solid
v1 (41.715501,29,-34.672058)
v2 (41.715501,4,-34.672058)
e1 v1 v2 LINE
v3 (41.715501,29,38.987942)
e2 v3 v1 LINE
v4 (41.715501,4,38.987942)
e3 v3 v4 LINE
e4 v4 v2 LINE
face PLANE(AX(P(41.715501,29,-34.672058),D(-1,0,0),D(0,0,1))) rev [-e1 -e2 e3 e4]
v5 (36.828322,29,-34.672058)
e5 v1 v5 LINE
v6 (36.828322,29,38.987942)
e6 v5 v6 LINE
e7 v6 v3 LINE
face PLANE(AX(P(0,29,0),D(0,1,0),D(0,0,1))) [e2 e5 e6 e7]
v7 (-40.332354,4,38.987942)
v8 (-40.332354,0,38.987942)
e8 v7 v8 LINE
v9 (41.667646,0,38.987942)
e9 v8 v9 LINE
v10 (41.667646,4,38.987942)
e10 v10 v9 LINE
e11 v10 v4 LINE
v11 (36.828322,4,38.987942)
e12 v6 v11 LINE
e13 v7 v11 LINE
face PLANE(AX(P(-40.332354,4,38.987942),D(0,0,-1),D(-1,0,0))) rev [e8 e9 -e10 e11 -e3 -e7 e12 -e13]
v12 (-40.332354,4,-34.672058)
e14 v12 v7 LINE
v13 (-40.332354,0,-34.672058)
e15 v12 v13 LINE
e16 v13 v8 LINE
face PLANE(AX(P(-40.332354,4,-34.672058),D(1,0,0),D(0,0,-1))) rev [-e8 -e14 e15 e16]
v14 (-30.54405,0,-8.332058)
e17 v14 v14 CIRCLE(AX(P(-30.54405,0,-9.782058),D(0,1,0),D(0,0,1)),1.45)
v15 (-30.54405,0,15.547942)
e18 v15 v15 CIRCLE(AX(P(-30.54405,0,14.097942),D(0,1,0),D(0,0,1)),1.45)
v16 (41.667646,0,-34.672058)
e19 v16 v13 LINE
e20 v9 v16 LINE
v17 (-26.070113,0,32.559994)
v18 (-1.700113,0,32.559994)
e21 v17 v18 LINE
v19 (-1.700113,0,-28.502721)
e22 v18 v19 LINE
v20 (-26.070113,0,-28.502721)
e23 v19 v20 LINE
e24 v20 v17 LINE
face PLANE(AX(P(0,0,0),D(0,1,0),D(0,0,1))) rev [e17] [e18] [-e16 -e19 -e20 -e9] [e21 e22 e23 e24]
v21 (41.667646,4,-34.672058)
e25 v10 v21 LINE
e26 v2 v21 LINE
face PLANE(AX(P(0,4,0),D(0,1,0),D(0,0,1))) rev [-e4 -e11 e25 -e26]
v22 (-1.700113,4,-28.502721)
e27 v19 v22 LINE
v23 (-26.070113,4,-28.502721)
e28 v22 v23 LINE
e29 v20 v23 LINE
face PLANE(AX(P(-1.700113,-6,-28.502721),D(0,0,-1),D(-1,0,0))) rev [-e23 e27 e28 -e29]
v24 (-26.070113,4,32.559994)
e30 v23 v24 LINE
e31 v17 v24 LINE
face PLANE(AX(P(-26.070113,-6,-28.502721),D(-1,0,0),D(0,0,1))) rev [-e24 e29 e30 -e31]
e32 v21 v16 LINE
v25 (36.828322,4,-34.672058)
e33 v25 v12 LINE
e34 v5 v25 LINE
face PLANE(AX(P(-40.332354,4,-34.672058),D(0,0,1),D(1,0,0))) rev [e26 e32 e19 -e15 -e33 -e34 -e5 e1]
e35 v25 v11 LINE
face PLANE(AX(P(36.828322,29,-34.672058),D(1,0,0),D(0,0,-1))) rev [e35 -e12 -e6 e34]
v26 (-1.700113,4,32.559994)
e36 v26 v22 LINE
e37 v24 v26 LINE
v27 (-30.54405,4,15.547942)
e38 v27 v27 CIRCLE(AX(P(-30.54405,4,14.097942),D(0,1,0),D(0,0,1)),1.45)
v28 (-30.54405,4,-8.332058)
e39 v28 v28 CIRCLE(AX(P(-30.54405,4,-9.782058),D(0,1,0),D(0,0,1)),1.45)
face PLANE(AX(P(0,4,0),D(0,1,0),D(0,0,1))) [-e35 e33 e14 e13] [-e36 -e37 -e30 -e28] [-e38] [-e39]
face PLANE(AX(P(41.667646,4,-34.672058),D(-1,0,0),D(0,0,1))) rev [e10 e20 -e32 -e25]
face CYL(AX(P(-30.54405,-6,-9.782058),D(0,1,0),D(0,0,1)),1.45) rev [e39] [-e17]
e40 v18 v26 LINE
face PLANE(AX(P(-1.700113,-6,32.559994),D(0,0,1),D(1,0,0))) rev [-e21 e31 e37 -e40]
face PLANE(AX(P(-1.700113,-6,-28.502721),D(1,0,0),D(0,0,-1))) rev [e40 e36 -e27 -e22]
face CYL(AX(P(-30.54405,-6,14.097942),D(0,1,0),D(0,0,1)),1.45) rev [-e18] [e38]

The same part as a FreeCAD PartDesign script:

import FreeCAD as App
import Part
import Sketcher


def add_polygon(sketch, points):
    """Adds a closed chain of lines whose ends are joined by coincident constraints."""
    first, n = sketch.GeometryCount, len(points)
    for a, b in zip(points, points[1:] + points[:1]):
        sketch.addGeometry(Part.LineSegment(App.Vector(*a, 0), App.Vector(*b, 0)), False)
    for i in range(n):
        sketch.addConstraint(Sketcher.Constraint("Coincident", first + i, 2, first + (i + 1) % n, 1))

doc = App.newDocument("Part")
params = doc.addObject("Spreadsheet::Sheet", "Params")
for row, (alias, value) in enumerate([
    ("sketch1_width", "82 mm"),
    ("sketch1_height", "73.66 mm"),
    ("pad1_length", "4 mm"),
    ("sketch2_height", "73.66 mm"),
    ("pad2_length", "25 mm"),
    ("sketch3_diameter", "2.9 mm"),
    ("pocket1_length", "10 mm"),
    ("sketch4_width", "24.37 mm"),
    ("pocket2_length", "10 mm"),
], start=1):
    params.set(f"A{row}", alias)
    params.set(f"B{row}", "=" + value)
    params.setAlias(f"B{row}", alias)

body = doc.addObject("PartDesign::Body", "Body")

sketch1 = doc.addObject("Sketcher::SketchObject", "Sketch")
body.addObject(sketch1)
sketch1.AttachmentSupport = (doc.XZ_Plane, [""])
sketch1.MapMode = "FlatFace"
add_polygon(sketch1, [(-40, -35), (-40, 39), (42, 39), (42, -35)])
sketch1.addConstraint(Sketcher.Constraint("Vertical", 0))
sketch1.addConstraint(Sketcher.Constraint("Horizontal", 1))
sketch1.addConstraint(Sketcher.Constraint("Vertical", 2))
sketch1.addConstraint(Sketcher.Constraint("Horizontal", 3))
sketch1.addConstraint(Sketcher.Constraint("DistanceX", 1, 1, 1, 2, 82.0))
sketch1.addConstraint(Sketcher.Constraint("DistanceY", 0, 1, 0, 2, 73.66))
sketch1.addConstraint(Sketcher.Constraint("DistanceY", -1, 1, 0, 2, 38.987942))
sketch1.addConstraint(Sketcher.Constraint("DistanceX", 0, 2, -1, 1, 40.332354))
sketch1.setExpression("Constraints[8]", "Params.sketch1_width")
sketch1.setExpression("Constraints[9]", "Params.sketch1_height")
pad1 = doc.addObject("PartDesign::Pad", "Pad")
body.addObject(pad1)
pad1.Profile = sketch1
pad1.setExpression("Length", "Params.pad1_length")
pad1.Reversed = True

sketch2 = doc.addObject("Sketcher::SketchObject", "Sketch001")
body.addObject(sketch2)
sketch2.AttachmentSupport = (doc.XZ_Plane, [""])
sketch2.MapMode = "FlatFace"
sketch2.AttachmentOffset = App.Placement(App.Vector(0, 0, -4), App.Rotation())
add_polygon(sketch2, [(36.8, -34.7), (36.8, 39), (41.7, 39), (41.7, -34.7)])
sketch2.addConstraint(Sketcher.Constraint("Vertical", 0))
sketch2.addConstraint(Sketcher.Constraint("Horizontal", 1))
sketch2.addConstraint(Sketcher.Constraint("Vertical", 2))
sketch2.addConstraint(Sketcher.Constraint("Horizontal", 3))
sketch2.addConstraint(Sketcher.Constraint("DistanceY", 0, 1, 0, 2, 73.66))
sketch2.addConstraint(Sketcher.Constraint("DistanceX", 1, 1, 1, 2, 4.887179))
sketch2.addConstraint(Sketcher.Constraint("DistanceX", -1, 1, 1, 2, 41.715501))
sketch2.addConstraint(Sketcher.Constraint("DistanceY", -1, 1, 0, 2, 38.987942))
sketch2.setExpression("Constraints[8]", "Params.sketch2_height")
pad2 = doc.addObject("PartDesign::Pad", "Pad001")
body.addObject(pad2)
pad2.Profile = sketch2
pad2.setExpression("Length", "Params.pad2_length")
pad2.Reversed = True

sketch3 = doc.addObject("Sketcher::SketchObject", "Sketch002")
body.addObject(sketch3)
sketch3.AttachmentSupport = (doc.XZ_Plane, [""])
sketch3.MapMode = "FlatFace"
sketch3.AttachmentOffset = App.Placement(App.Vector(0, 0, -4), App.Rotation())
sketch3.addGeometry(Part.Circle(App.Vector(-30.5, -9.8, 0), App.Vector(0, 0, 1), 1.4), False)
sketch3.addGeometry(Part.Circle(App.Vector(-30.5, 14.1, 0), App.Vector(0, 0, 1), 1.4), False)
sketch3.addConstraint(Sketcher.Constraint("Equal", 0, 1))
sketch3.addConstraint(Sketcher.Constraint("Vertical", 0, 3, 1, 3))
sketch3.addConstraint(Sketcher.Constraint("Diameter", 0, 2.9))
sketch3.addConstraint(Sketcher.Constraint("DistanceY", 0, 3, 1, 3, 23.88))
sketch3.addConstraint(Sketcher.Constraint("DistanceX", 0, 3, -1, 1, 30.54405))
sketch3.addConstraint(Sketcher.Constraint("DistanceY", 0, 3, -1, 1, 9.782058))
sketch3.setExpression("Constraints[2]", "Params.sketch3_diameter")
pocket1 = doc.addObject("PartDesign::Pocket", "Pocket")
body.addObject(pocket1)
pocket1.Profile = sketch3
pocket1.setExpression("Length", "Params.pocket1_length")
pocket1.Reversed = True

sketch4 = doc.addObject("Sketcher::SketchObject", "Sketch003")
body.addObject(sketch4)
sketch4.AttachmentSupport = (doc.XZ_Plane, [""])
sketch4.MapMode = "FlatFace"
sketch4.AttachmentOffset = App.Placement(App.Vector(0, 0, -4), App.Rotation())
add_polygon(sketch4, [(-26, -29), (-26, 33), (-2, 33), (-2, -29)])
sketch4.addConstraint(Sketcher.Constraint("Vertical", 0))
sketch4.addConstraint(Sketcher.Constraint("Horizontal", 1))
sketch4.addConstraint(Sketcher.Constraint("Vertical", 2))
sketch4.addConstraint(Sketcher.Constraint("Horizontal", 3))
sketch4.addConstraint(Sketcher.Constraint("DistanceX", 1, 1, 1, 2, 24.37))
sketch4.addConstraint(Sketcher.Constraint("DistanceY", 0, 1, 0, 2, 61.062715))
sketch4.addConstraint(Sketcher.Constraint("DistanceY", 2, 2, -1, 1, 28.502721))
sketch4.addConstraint(Sketcher.Constraint("DistanceX", 0, 2, -1, 1, 26.070113))
sketch4.setExpression("Constraints[8]", "Params.sketch4_width")
pocket2 = doc.addObject("PartDesign::Pocket", "Pocket001")
body.addObject(pocket2)
pocket2.Profile = sketch4
pocket2.setExpression("Length", "Params.pocket2_length")
pocket2.Reversed = True

doc.recompute()
